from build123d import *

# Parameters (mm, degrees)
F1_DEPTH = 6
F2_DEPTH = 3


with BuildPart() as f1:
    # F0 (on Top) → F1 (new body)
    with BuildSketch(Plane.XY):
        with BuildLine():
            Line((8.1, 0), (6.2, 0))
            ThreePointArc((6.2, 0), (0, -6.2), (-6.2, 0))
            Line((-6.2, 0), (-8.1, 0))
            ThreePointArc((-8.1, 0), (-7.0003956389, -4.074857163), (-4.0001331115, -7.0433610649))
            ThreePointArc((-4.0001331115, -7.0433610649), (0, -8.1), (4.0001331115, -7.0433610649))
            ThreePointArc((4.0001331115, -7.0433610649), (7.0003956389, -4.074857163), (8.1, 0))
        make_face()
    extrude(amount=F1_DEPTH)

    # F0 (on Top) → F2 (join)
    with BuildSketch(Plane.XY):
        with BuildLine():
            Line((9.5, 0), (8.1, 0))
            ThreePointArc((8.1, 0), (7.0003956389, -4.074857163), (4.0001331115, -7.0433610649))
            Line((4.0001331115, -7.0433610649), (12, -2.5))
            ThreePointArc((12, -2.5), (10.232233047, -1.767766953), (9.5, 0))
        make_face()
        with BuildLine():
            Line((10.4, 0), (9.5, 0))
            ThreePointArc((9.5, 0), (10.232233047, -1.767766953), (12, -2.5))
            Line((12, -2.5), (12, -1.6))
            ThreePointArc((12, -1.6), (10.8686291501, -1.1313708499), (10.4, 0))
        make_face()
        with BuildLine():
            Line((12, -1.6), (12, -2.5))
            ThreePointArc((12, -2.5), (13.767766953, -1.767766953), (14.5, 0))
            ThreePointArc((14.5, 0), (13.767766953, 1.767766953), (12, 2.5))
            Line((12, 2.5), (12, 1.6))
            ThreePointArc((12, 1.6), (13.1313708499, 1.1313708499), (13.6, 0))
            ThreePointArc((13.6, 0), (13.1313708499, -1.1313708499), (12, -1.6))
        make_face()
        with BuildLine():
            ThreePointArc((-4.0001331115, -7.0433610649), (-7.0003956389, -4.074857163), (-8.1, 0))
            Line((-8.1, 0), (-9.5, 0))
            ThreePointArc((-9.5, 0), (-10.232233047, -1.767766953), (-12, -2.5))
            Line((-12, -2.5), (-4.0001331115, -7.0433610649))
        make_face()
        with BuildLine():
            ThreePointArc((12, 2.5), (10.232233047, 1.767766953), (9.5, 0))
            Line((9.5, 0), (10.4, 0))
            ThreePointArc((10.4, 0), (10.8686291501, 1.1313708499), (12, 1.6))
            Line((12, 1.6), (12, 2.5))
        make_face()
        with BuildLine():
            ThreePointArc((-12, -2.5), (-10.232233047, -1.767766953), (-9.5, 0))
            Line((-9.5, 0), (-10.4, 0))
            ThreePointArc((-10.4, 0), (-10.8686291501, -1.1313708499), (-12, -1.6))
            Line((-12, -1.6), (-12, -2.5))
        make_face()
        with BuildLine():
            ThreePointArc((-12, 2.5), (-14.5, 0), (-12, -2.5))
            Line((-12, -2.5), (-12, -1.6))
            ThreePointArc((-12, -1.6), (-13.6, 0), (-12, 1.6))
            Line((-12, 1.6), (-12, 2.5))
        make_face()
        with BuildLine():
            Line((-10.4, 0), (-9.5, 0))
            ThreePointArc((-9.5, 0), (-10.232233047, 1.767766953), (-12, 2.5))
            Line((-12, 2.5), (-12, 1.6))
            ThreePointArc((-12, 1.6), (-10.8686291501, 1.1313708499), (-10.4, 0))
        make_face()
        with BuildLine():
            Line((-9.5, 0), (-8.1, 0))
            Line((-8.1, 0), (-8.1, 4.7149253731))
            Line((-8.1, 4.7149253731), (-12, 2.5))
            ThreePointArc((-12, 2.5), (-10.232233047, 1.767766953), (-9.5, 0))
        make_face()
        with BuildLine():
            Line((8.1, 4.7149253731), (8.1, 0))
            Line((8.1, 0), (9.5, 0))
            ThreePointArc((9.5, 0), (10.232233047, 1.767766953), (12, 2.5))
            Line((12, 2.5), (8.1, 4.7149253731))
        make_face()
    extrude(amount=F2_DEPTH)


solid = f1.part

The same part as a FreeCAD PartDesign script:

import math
import FreeCAD as App
import Part
import Sketcher

doc = App.newDocument("Part")
params = doc.addObject("Spreadsheet::Sheet", "Params")
for row, (alias, value) in enumerate([
    ("sketch1_radius", "6.2 mm"),
    ("sketch1_radius2", "8.1 mm"),
    ("pad1_length", "6 mm"),
    ("sketch2_radius", "8.1 mm"),
    ("sketch2_radius2", "2.5 mm"),
    ("sketch2_radius3", "1.6 mm"),
    ("pad2_length", "3 mm"),
], start=1):
    params.set(f"A{row}", alias)
    params.set(f"B{row}", "=" + value)
    params.setAlias(f"B{row}", alias)

body = doc.addObject("PartDesign::Body", "Body")

# Sketch on XY plane
sketch1 = doc.addObject("Sketcher::SketchObject", "Sketch")
body.addObject(sketch1)
sketch1.AttachmentSupport = (doc.XY_Plane, [""])
sketch1.MapMode = "FlatFace"
sketch1.addGeometry(Part.LineSegment(App.Vector(8.1, 0, 0), App.Vector(6.2, 0, 0)), False)
sketch1.addGeometry(Part.ArcOfCircle(Part.Circle(App.Vector(0, 0, 0), App.Vector(0, 0, 1), 6.2), math.radians(180), math.radians(360)), False)
sketch1.addGeometry(Part.LineSegment(App.Vector(-6.2, 0, 0), App.Vector(-8.1, 0, 0)), False)
sketch1.addGeometry(Part.ArcOfCircle(Part.Circle(App.Vector(0, 0, 0), App.Vector(0, 0, 1), 8.1), math.radians(180), math.radians(240)), False)
sketch1.addGeometry(Part.ArcOfCircle(Part.Circle(App.Vector(0, 0, 0), App.Vector(0, 0, 1), 8.1), math.radians(-120), math.radians(-60)), False)
sketch1.addGeometry(Part.ArcOfCircle(Part.Circle(App.Vector(0, 0, 0), App.Vector(0, 0, 1), 8.1), math.radians(-60), math.radians(0)), False)
sketch1.addConstraint(Sketcher.Constraint("Coincident", 0, 2, 1, 2))
sketch1.addConstraint(Sketcher.Constraint("Coincident", 1, 1, 2, 1))
sketch1.addConstraint(Sketcher.Constraint("Coincident", 2, 2, 3, 1))
sketch1.addConstraint(Sketcher.Constraint("Tangent", 3, 2, 4, 1))
sketch1.addConstraint(Sketcher.Constraint("Tangent", 4, 2, 5, 1))
sketch1.addConstraint(Sketcher.Constraint("Coincident", 5, 2, 0, 1))
sketch1.addConstraint(Sketcher.Constraint("Horizontal", 0))
sketch1.addConstraint(Sketcher.Constraint("Horizontal", 2))
sketch1.addConstraint(Sketcher.Constraint("Coincident", 1, 3, -1, 1))
sketch1.addConstraint(Sketcher.Constraint("Coincident", 3, 3, -1, 1))
sketch1.addConstraint(Sketcher.Constraint("Coincident", 5, 3, -1, 1))
sketch1.addConstraint(Sketcher.Constraint("PointOnObject", 0, 2, -1))
sketch1.addConstraint(Sketcher.Constraint("PointOnObject", 1, 1, -1))
sketch1.addConstraint(Sketcher.Constraint("Horizontal", 3, 2, 4, 2))
sketch1.addConstraint(Sketcher.Constraint("Radius", 1, 6.2))
sketch1.addConstraint(Sketcher.Constraint("Radius", 3, 8.1))
sketch1.addConstraint(Sketcher.Constraint("DistanceY", 3, 2, -1, 1, 7.043361))
sketch1.setExpression("Constraints[14]", "Params.sketch1_radius")
sketch1.setExpression("Constraints[15]", "Params.sketch1_radius2")
pad1 = doc.addObject("PartDesign::Pad", "Pad")
body.addObject(pad1)
pad1.Profile = sketch1
pad1.setExpression("Length", "Params.pad1_length")

# Sketch on XY plane
sketch2 = doc.addObject("Sketcher::SketchObject", "Sketch001")
body.addObject(sketch2)
sketch2.AttachmentSupport = (doc.XY_Plane, [""])
sketch2.MapMode = "FlatFace"
sketch2.addGeometry(Part.ArcOfCircle(Part.Circle(App.Vector(0, 0, 0), App.Vector(0, 0, 1), 8.1), math.radians(-60), math.radians(0)), False)
sketch2.addGeometry(Part.LineSegment(App.Vector(4, -7, 0), App.Vector(12, -2.5, 0)), False)
sketch2.addGeometry(Part.ArcOfCircle(Part.Circle(App.Vector(12, 0, 0), App.Vector(0, 0, 1), 2.5), math.radians(-90), math.radians(0)), False)
sketch2.addGeometry(Part.ArcOfCircle(Part.Circle(App.Vector(12, 0, 0), App.Vector(0, 0, 1), 2.5), math.radians(0), math.radians(90)), False)
sketch2.addGeometry(Part.LineSegment(App.Vector(12, 2.5, 0), App.Vector(8.1, 4.7, 0)), False)
sketch2.addGeometry(Part.LineSegment(App.Vector(8.1, 4.7, 0), App.Vector(8.1, 0, 0)), False)
sketch2.addGeometry(Part.ArcOfCircle(Part.Circle(App.Vector(12, 0, 0), App.Vector(0, 0, 1), 1.6), math.radians(0), math.radians(90)), False)
sketch2.addGeometry(Part.ArcOfCircle(Part.Circle(App.Vector(12, 0, 0), App.Vector(0, 0, 1), 1.6), math.radians(-90), math.radians(0)), False)
sketch2.addGeometry(Part.ArcOfCircle(Part.Circle(App.Vector(12, 0, 0), App.Vector(0, 0, 1), 1.6), math.radians(180), math.radians(270)), False)
sketch2.addGeometry(Part.ArcOfCircle(Part.Circle(App.Vector(12, 0, 0), App.Vector(0, 0, 1), 1.6), math.radians(90), math.radians(180)), False)
sketch2.addGeometry(Part.ArcOfCircle(Part.Circle(App.Vector(0, 0, 0), App.Vector(0, 0, 1), 8.1), math.radians(180), math.radians(240)), False)
sketch2.addGeometry(Part.LineSegment(App.Vector(-8.1, 0, 0), App.Vector(-8.1, 4.7, 0)), False)
sketch2.addGeometry(Part.LineSegment(App.Vector(-8.1, 4.7, 0), App.Vector(-12, 2.5, 0)), False)
sketch2.addGeometry(Part.ArcOfCircle(Part.Circle(App.Vector(-12, 0, 0), App.Vector(0, 0, 1), 2.5), math.radians(90), math.radians(270)), False)
sketch2.addGeometry(Part.LineSegment(App.Vector(-12, -2.5, 0), App.Vector(-4, -7, 0)), False)
sketch2.addGeometry(Part.ArcOfCircle(Part.Circle(App.Vector(-12, 0, 0), App.Vector(0, 0, 1), 1.6), math.radians(-90), math.radians(0)), False)
sketch2.addGeometry(Part.ArcOfCircle(Part.Circle(App.Vector(-12, 0, 0), App.Vector(0, 0, 1), 1.6), math.radians(90), math.radians(270)), False)
sketch2.addGeometry(Part.ArcOfCircle(Part.Circle(App.Vector(-12, 0, 0), App.Vector(0, 0, 1), 1.6), math.radians(0), math.radians(90)), False)
sketch2.addConstraint(Sketcher.Constraint("Tangent", 0, 1, 1, 1))
sketch2.addConstraint(Sketcher.Constraint("Coincident", 1, 2, 2, 1))
sketch2.addConstraint(Sketcher.Constraint("Tangent", 2, 2, 3, 1))
sketch2.addConstraint(Sketcher.Constraint("Coincident", 3, 2, 4, 1))
sketch2.addConstraint(Sketcher.Constraint("Coincident", 4, 2, 5, 1))
sketch2.addConstraint(Sketcher.Constraint("Tangent", 5, 2, 0, 2))
sketch2.addConstraint(Sketcher.Constraint("Tangent", 6, 1, 7, 2))
sketch2.addConstraint(Sketcher.Constraint("Tangent", 7, 1, 8, 2))
sketch2.addConstraint(Sketcher.Constraint("Tangent", 8, 1, 9, 2))
sketch2.addConstraint(Sketcher.Constraint("Tangent", 9, 1, 6, 2))
sketch2.addConstraint(Sketcher.Constraint("Tangent", 10, 1, 11, 1))
sketch2.addConstraint(Sketcher.Constraint("Coincident", 11, 2, 12, 1))
sketch2.addConstraint(Sketcher.Constraint("Coincident", 12, 2, 13, 1))
sketch2.addConstraint(Sketcher.Constraint("Coincident", 13, 2, 14, 1))
sketch2.addConstraint(Sketcher.Constraint("Tangent", 14, 2, 10, 2))
sketch2.addConstraint(Sketcher.Constraint("Tangent", 15, 1, 16, 2))
sketch2.addConstraint(Sketcher.Constraint("Tangent", 16, 1, 17, 2))
sketch2.addConstraint(Sketcher.Constraint("Tangent", 17, 1, 15, 2))
sketch2.addConstraint(Sketcher.Constraint("Vertical", 5))
sketch2.addConstraint(Sketcher.Constraint("Vertical", 11))
sketch2.addConstraint(Sketcher.Constraint("Coincident", 0, 3, -1, 1))
sketch2.addConstraint(Sketcher.Constraint("Coincident", 10, 3, -1, 1))
sketch2.addConstraint(Sketcher.Constraint("Coincident", 6, 3, 2, 3))
sketch2.addConstraint(Sketcher.Constraint("Coincident", 15, 3, 13, 3))
sketch2.addConstraint(Sketcher.Constraint("Equal", 2, 3))
sketch2.addConstraint(Sketcher.Constraint("Equal", 6, 7))
sketch2.addConstraint(Sketcher.Constraint("Equal", 0, 10))
sketch2.addConstraint(Sketcher.Constraint("Equal", 3, 13))
sketch2.addConstraint(Sketcher.Constraint("Equal", 9, 15))
sketch2.addConstraint(Sketcher.Constraint("Symmetric", 2, 3, 13, 3, -1, 1))
sketch2.addConstraint(Sketcher.Constraint("Symmetric", 3, 2, 12, 2, -2))
sketch2.addConstraint(Sketcher.Constraint("PointOnObject", 2, 2, -1))
sketch2.addConstraint(Sketcher.Constraint("PointOnObject", 6, 1, -1))
sketch2.addConstraint(Sketcher.Constraint("PointOnObject", 8, 1, -1))
sketch2.addConstraint(Sketcher.Constraint("PointOnObject", 17, 1, -1))
sketch2.addConstraint(Sketcher.Constraint("Parallel", 1, 12))
sketch2.addConstraint(Sketcher.Constraint("Parallel", 4, 14))
sketch2.addConstraint(Sketcher.Constraint("Horizontal", 4, 2, 11, 2))
sketch2.addConstraint(Sketcher.Constraint("Vertical", 9, 3, 1, 2))
sketch2.addConstraint(Sketcher.Constraint("Vertical", 1, 2, 3, 2))
sketch2.addConstraint(Sketcher.Constraint("Vertical", 3, 2, 7, 1))
sketch2.addConstraint(Sketcher.Constraint("Vertical", 7, 1, 9, 1))
sketch2.addConstraint(Sketcher.Constraint("Vertical", 13, 2, 15, 1))
sketch2.addConstraint(Sketcher.Constraint("Vertical", 15, 1, 16, 1))
sketch2.addConstraint(Sketcher.Constraint("Radius", 0, 8.1))
sketch2.addConstraint(Sketcher.Constraint("Radius", 2, 2.5))
sketch2.addConstraint(Sketcher.Constraint("Radius", 6, 1.6))
sketch2.addConstraint(Sketcher.Constraint("DistanceX", -1, 1, 2, 3, 12.0))
sketch2.setExpression("Constraints[44]", "Params.sketch2_radius")
sketch2.setExpression("Constraints[45]", "Params.sketch2_radius2")
sketch2.setExpression("Constraints[46]", "Params.sketch2_radius3")
pad2 = doc.addObject("PartDesign::Pad", "Pad001")
body.addObject(pad2)
pad2.Profile = sketch2
pad2.setExpression("Length", "Params.pad2_length")

doc.recompute()
